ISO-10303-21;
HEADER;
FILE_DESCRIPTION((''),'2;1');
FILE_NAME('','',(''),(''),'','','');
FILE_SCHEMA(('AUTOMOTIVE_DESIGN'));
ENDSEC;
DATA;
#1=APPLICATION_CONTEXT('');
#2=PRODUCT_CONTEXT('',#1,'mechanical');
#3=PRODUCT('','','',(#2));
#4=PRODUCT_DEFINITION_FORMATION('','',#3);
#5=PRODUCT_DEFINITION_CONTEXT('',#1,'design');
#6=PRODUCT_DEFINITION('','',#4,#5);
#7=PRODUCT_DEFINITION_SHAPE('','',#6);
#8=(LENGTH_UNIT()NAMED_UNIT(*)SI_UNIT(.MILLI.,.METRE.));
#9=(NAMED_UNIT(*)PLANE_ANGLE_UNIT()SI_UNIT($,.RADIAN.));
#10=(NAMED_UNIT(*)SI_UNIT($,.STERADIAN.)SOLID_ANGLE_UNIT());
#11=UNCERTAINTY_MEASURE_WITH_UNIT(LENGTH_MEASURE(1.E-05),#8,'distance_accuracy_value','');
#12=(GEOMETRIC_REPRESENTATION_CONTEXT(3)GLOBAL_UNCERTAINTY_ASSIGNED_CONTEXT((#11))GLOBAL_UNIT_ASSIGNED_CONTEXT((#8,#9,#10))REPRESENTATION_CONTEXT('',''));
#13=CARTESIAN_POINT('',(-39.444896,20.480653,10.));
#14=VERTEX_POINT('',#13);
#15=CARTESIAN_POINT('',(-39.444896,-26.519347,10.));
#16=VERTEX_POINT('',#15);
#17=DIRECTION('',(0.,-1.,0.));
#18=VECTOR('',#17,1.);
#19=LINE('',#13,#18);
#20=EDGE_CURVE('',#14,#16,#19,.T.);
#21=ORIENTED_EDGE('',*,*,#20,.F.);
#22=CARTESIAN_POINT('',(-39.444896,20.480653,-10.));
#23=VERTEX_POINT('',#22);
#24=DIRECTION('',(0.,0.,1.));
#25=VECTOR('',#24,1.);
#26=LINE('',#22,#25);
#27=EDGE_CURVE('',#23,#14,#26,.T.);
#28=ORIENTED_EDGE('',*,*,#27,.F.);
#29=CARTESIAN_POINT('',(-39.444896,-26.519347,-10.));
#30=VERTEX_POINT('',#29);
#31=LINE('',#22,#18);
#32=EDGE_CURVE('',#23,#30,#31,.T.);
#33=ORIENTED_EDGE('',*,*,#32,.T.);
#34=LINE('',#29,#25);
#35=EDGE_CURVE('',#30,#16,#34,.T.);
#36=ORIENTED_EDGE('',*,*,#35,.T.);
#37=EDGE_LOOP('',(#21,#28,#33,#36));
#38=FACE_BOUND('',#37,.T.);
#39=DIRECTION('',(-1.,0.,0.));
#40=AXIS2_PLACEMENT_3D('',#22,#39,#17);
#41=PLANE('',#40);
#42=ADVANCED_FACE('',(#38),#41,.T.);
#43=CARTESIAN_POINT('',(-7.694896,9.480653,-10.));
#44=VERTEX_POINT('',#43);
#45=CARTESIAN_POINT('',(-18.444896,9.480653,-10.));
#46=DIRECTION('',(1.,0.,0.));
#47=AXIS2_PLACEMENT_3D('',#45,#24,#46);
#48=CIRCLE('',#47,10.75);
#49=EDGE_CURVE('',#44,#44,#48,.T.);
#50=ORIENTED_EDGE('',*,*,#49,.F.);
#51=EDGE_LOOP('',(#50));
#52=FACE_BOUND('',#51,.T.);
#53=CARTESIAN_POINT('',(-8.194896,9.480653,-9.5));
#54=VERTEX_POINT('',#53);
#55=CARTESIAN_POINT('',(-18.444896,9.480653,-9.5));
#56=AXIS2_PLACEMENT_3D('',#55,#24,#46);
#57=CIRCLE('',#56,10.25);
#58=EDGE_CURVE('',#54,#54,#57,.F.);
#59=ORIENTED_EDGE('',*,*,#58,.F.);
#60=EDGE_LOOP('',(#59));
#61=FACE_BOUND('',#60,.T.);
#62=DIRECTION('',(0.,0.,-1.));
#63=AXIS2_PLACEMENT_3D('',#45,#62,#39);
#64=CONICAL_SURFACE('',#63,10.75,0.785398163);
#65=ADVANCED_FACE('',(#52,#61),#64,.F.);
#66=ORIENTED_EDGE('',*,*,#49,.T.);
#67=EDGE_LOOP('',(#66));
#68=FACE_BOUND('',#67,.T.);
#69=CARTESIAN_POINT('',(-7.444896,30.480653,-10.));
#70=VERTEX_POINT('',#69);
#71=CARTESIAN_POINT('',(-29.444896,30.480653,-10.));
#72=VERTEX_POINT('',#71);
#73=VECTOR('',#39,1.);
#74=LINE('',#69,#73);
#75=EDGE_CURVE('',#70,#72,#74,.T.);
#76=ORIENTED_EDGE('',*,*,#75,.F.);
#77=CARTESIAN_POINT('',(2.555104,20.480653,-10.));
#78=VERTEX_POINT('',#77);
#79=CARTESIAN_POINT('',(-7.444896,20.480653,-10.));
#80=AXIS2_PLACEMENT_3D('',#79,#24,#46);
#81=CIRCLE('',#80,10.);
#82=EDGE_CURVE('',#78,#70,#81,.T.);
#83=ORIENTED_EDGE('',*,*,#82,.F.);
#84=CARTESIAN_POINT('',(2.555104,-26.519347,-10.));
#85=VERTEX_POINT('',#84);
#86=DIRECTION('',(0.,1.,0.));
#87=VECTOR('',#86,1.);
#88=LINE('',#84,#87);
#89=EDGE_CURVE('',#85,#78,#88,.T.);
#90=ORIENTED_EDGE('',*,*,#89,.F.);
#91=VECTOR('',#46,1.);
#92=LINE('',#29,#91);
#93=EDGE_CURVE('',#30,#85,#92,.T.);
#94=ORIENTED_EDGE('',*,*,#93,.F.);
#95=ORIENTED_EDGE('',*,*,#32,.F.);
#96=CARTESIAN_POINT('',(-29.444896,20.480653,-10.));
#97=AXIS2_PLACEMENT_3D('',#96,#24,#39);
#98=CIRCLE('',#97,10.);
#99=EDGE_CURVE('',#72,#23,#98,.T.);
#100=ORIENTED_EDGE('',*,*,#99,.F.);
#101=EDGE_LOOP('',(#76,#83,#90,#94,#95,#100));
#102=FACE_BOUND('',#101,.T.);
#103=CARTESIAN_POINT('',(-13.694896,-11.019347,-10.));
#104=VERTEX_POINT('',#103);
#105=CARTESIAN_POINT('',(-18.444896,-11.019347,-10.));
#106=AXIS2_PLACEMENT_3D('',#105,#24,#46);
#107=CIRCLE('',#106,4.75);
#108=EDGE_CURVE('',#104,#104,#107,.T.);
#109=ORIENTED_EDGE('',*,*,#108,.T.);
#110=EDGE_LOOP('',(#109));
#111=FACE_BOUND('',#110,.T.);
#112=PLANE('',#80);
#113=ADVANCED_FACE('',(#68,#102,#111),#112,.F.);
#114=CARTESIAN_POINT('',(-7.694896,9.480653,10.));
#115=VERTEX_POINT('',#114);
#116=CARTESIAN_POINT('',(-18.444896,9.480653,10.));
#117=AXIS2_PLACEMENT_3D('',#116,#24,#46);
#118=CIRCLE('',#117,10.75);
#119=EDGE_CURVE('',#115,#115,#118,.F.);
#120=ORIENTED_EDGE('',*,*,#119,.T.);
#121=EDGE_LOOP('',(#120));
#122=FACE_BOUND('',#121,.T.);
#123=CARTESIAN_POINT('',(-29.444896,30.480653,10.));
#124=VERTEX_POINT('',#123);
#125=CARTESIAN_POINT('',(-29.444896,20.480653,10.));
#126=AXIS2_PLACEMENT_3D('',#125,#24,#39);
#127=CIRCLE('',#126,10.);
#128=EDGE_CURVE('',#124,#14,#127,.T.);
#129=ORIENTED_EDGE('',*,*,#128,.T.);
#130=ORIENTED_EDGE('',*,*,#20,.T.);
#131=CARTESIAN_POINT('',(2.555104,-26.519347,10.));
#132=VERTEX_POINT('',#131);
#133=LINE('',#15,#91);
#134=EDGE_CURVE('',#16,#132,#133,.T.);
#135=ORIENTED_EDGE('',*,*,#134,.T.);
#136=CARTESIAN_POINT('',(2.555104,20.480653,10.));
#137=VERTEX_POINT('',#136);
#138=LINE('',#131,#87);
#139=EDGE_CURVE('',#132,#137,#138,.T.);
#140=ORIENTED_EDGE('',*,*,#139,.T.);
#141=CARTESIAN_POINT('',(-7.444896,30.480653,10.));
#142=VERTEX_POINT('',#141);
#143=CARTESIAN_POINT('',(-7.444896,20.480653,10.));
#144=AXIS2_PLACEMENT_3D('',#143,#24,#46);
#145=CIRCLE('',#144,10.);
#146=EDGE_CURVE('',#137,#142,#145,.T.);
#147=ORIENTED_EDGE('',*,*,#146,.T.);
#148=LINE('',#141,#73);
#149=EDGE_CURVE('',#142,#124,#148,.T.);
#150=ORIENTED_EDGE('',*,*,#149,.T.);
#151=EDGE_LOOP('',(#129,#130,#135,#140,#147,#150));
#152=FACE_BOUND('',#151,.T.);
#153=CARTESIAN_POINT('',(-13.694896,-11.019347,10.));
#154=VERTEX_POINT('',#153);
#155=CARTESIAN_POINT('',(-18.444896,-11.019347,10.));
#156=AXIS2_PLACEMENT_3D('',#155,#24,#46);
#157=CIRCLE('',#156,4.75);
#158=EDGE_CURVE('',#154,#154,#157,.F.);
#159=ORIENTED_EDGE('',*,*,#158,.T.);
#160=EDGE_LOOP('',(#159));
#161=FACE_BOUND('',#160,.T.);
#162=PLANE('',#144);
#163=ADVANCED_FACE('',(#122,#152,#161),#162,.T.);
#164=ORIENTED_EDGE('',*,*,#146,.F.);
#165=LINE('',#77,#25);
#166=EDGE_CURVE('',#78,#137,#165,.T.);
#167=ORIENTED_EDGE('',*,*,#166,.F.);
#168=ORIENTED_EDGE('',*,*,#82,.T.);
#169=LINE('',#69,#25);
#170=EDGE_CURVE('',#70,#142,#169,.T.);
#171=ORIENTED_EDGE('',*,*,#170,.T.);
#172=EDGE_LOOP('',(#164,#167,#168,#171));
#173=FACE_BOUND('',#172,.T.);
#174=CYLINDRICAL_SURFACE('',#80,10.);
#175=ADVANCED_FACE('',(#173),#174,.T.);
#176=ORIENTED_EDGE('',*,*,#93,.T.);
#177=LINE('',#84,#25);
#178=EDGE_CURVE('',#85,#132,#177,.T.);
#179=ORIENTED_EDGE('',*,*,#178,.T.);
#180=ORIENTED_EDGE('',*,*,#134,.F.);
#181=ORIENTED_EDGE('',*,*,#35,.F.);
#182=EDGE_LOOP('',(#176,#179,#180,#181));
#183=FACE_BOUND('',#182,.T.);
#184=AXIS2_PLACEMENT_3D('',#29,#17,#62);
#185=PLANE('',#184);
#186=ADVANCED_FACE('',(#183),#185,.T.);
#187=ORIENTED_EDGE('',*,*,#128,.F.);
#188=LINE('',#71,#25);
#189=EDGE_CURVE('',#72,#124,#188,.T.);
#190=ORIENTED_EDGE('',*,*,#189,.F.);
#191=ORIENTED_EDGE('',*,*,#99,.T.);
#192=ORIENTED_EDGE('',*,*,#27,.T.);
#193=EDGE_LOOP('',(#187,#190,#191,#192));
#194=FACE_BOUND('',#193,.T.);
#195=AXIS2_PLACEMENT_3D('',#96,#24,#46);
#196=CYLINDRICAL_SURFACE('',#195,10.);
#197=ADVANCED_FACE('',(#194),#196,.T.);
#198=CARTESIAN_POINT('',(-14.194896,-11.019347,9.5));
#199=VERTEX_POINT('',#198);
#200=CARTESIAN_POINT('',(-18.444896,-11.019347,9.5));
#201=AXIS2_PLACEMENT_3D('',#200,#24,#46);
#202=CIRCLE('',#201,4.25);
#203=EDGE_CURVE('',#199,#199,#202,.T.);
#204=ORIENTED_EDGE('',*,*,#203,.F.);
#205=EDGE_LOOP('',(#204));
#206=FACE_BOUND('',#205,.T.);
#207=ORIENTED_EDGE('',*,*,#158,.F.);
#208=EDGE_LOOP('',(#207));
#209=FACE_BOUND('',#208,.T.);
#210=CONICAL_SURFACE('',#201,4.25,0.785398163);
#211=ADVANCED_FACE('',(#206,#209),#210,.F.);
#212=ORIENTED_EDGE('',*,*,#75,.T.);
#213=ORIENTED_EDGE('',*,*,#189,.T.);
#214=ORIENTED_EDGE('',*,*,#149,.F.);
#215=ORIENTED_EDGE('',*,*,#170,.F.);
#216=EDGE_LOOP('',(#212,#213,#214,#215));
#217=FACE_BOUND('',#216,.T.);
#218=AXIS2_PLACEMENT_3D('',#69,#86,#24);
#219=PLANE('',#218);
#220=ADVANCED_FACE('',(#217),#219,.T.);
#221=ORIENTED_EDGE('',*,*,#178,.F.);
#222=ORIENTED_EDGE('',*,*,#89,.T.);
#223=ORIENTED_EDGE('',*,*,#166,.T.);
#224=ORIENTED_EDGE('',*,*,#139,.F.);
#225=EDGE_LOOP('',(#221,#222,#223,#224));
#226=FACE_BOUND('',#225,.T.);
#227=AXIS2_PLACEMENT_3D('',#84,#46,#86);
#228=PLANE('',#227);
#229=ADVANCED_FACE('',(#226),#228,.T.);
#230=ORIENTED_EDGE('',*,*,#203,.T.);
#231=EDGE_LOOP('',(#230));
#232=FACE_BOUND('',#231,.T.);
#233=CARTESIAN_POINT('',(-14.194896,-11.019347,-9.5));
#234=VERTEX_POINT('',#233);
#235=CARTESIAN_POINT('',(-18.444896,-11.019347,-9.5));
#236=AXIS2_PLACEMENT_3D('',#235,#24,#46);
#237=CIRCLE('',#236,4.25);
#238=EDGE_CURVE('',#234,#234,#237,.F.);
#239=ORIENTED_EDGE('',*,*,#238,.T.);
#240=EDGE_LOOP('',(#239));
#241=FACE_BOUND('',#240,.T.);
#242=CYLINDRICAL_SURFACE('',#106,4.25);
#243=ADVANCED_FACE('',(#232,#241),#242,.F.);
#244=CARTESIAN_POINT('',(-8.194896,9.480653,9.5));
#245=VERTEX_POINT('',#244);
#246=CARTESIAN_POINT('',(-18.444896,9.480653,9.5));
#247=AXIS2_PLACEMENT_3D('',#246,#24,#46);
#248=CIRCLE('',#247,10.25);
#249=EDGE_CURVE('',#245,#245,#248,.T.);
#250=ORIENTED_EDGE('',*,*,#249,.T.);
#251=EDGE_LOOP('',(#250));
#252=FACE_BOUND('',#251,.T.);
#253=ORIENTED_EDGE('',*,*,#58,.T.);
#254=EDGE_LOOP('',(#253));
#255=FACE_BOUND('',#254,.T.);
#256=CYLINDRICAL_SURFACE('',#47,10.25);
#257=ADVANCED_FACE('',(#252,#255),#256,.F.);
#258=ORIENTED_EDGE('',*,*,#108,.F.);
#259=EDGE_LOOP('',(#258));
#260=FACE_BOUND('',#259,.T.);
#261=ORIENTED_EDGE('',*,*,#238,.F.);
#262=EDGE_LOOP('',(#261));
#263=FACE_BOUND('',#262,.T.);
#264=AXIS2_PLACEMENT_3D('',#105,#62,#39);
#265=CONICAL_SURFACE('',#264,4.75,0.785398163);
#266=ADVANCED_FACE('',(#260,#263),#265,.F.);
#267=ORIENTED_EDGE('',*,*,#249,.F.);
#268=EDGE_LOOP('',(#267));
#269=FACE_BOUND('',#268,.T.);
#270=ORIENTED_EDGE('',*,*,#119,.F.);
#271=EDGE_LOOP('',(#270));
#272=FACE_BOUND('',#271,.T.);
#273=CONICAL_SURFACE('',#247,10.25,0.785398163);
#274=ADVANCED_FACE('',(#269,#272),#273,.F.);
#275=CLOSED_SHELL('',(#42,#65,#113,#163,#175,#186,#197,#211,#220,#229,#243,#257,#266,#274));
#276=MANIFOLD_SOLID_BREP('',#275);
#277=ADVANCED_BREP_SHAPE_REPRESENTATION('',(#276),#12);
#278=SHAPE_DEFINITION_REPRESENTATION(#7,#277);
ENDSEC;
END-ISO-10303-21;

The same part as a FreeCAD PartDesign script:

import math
import FreeCAD as App
import Part
import Sketcher
from FreeCAD import Vector
Q = App.Units.Quantity


def edges_at(feature, points):
    """Names of the edges that pass closest to the given points."""
    edges = feature.Shape.Edges
    near = lambda p: min(range(len(edges)), key=lambda i: edges[i].distToShape(Part.Vertex(*p))[0])
    return sorted({f"Edge{near(p) + 1}" for p in points})

doc = App.newDocument("Part")
params = doc.addObject("Spreadsheet::Sheet", "Params")
for row, (alias, value) in enumerate([
    ("sketch1_radius", "10 mm"),
    ("sketch1_diameter", "8.5 mm"),
    ("sketch1_diameter2", "20.5 mm"),
    ("sketch1_width", "22 mm"),
    ("sketch1_height", "47 mm"),
    ("pad1_length", "20 mm"),
    ("chamfer_size", "0.5 mm"),
    ("chamfer2_size", "0.5 mm"),
], start=1):
    params.set(f"A{row}", alias)
    params.set(f"B{row}", "=" + value)
    params.setAlias(f"B{row}", alias)

body = doc.addObject("PartDesign::Body", "Body")

# Sketch on XY plane
sketch1 = body.newObject("Sketcher::SketchObject", "Sketch")
sketch1.AttachmentSupport = (doc.getObject("XY_Plane"), [""])
sketch1.MapMode = "FlatFace"
sketch1.addGeometry(Part.LineSegment(Vector(-7.4, 30.5, 0), Vector(-29.4, 30.5, 0)), False)
sketch1.addGeometry(Part.ArcOfCircle(Part.Circle(Vector(-29.4, 20.5, 0), Vector(0, 0, 1), 10), math.radians(90), math.radians(180)), False)
sketch1.addGeometry(Part.LineSegment(Vector(-39.4, 20.5, 0), Vector(-39.4, -26.5, 0)), False)
sketch1.addGeometry(Part.LineSegment(Vector(-39.4, -26.5, 0), Vector(2.6, -26.5, 0)), False)
sketch1.addGeometry(Part.LineSegment(Vector(2.6, -26.5, 0), Vector(2.6, 20.5, 0)), False)
sketch1.addGeometry(Part.ArcOfCircle(Part.Circle(Vector(-7.4, 20.5, 0), Vector(0, 0, 1), 10), math.radians(0), math.radians(90)), False)
sketch1.addGeometry(Part.Circle(Vector(-18.4, -11, 0), Vector(0, 0, 1), 4.2), False)
sketch1.addGeometry(Part.Circle(Vector(-18.4, 9.5, 0), Vector(0, 0, 1), 10.2), False)
sketch1.addConstraint(Sketcher.Constraint("Tangent", 0, 2, 1, 1))
sketch1.addConstraint(Sketcher.Constraint("Tangent", 1, 2, 2, 1))
sketch1.addConstraint(Sketcher.Constraint("Coincident", 2, 2, 3, 1))
sketch1.addConstraint(Sketcher.Constraint("Coincident", 3, 2, 4, 1))
sketch1.addConstraint(Sketcher.Constraint("Tangent", 4, 2, 5, 1))
sketch1.addConstraint(Sketcher.Constraint("Tangent", 5, 2, 0, 1))
sketch1.addConstraint(Sketcher.Constraint("Horizontal", 0))
sketch1.addConstraint(Sketcher.Constraint("Vertical", 2))
sketch1.addConstraint(Sketcher.Constraint("Horizontal", 3))
sketch1.addConstraint(Sketcher.Constraint("Vertical", 4))
sketch1.addConstraint(Sketcher.Constraint("Equal", 1, 5))
sketch1.addConstraint(Sketcher.Constraint("Vertical", 6, 3, 7, 3))
sketch1.addConstraint(Sketcher.Constraint("Radius", 1, Q("10 mm")))
sketch1.addConstraint(Sketcher.Constraint("Diameter", 6, Q("8.5 mm")))
sketch1.addConstraint(Sketcher.Constraint("Diameter", 7, Q("20.5 mm")))
sketch1.addConstraint(Sketcher.Constraint("DistanceX", 0, 2, 0, 1, Q("22 mm")))
sketch1.addConstraint(Sketcher.Constraint("DistanceY", 2, 2, 2, 1, Q("47 mm")))
sketch1.addConstraint(Sketcher.Constraint("DistanceX", 1, 3, 6, 3, Q("11 mm")))
sketch1.addConstraint(Sketcher.Constraint("DistanceY", 7, 3, 1, 3, Q("11 mm")))
sketch1.addConstraint(Sketcher.Constraint("DistanceY", 6, 3, 1, 3, Q("31.5 mm")))
sketch1.addConstraint(Sketcher.Constraint("DistanceX", 1, 3, -1, 1, Q("29.444896 mm")))
sketch1.addConstraint(Sketcher.Constraint("DistanceY", -1, 1, 1, 3, Q("20.480653 mm")))
sketch1.setExpression("Constraints[12]", "Params.sketch1_radius")
sketch1.setExpression("Constraints[13]", "Params.sketch1_diameter")
sketch1.setExpression("Constraints[14]", "Params.sketch1_diameter2")
sketch1.setExpression("Constraints[15]", "Params.sketch1_width")
sketch1.setExpression("Constraints[16]", "Params.sketch1_height")
pad1 = body.newObject("PartDesign::Pad", "Pad")
pad1.Profile = sketch1
pad1.setExpression("Length", "Params.pad1_length")
pad1.Midplane = True
doc.recompute()

chamfer = body.newObject("PartDesign::Chamfer", "Chamfer")
chamfer.Base = (pad1, edges_at(pad1, [(-28.695, 9.481, -10), (-28.695, 9.481, 10)]))
chamfer.setExpression("Size", "Params.chamfer_size")
doc.recompute()

chamfer2 = body.newObject("PartDesign::Chamfer", "Chamfer001")
chamfer2.Base = (chamfer, edges_at(chamfer, [(-22.695, -11.019, -10), (-22.695, -11.019, 10)]))
chamfer2.setExpression("Size", "Params.chamfer2_size")

doc.recompute()
